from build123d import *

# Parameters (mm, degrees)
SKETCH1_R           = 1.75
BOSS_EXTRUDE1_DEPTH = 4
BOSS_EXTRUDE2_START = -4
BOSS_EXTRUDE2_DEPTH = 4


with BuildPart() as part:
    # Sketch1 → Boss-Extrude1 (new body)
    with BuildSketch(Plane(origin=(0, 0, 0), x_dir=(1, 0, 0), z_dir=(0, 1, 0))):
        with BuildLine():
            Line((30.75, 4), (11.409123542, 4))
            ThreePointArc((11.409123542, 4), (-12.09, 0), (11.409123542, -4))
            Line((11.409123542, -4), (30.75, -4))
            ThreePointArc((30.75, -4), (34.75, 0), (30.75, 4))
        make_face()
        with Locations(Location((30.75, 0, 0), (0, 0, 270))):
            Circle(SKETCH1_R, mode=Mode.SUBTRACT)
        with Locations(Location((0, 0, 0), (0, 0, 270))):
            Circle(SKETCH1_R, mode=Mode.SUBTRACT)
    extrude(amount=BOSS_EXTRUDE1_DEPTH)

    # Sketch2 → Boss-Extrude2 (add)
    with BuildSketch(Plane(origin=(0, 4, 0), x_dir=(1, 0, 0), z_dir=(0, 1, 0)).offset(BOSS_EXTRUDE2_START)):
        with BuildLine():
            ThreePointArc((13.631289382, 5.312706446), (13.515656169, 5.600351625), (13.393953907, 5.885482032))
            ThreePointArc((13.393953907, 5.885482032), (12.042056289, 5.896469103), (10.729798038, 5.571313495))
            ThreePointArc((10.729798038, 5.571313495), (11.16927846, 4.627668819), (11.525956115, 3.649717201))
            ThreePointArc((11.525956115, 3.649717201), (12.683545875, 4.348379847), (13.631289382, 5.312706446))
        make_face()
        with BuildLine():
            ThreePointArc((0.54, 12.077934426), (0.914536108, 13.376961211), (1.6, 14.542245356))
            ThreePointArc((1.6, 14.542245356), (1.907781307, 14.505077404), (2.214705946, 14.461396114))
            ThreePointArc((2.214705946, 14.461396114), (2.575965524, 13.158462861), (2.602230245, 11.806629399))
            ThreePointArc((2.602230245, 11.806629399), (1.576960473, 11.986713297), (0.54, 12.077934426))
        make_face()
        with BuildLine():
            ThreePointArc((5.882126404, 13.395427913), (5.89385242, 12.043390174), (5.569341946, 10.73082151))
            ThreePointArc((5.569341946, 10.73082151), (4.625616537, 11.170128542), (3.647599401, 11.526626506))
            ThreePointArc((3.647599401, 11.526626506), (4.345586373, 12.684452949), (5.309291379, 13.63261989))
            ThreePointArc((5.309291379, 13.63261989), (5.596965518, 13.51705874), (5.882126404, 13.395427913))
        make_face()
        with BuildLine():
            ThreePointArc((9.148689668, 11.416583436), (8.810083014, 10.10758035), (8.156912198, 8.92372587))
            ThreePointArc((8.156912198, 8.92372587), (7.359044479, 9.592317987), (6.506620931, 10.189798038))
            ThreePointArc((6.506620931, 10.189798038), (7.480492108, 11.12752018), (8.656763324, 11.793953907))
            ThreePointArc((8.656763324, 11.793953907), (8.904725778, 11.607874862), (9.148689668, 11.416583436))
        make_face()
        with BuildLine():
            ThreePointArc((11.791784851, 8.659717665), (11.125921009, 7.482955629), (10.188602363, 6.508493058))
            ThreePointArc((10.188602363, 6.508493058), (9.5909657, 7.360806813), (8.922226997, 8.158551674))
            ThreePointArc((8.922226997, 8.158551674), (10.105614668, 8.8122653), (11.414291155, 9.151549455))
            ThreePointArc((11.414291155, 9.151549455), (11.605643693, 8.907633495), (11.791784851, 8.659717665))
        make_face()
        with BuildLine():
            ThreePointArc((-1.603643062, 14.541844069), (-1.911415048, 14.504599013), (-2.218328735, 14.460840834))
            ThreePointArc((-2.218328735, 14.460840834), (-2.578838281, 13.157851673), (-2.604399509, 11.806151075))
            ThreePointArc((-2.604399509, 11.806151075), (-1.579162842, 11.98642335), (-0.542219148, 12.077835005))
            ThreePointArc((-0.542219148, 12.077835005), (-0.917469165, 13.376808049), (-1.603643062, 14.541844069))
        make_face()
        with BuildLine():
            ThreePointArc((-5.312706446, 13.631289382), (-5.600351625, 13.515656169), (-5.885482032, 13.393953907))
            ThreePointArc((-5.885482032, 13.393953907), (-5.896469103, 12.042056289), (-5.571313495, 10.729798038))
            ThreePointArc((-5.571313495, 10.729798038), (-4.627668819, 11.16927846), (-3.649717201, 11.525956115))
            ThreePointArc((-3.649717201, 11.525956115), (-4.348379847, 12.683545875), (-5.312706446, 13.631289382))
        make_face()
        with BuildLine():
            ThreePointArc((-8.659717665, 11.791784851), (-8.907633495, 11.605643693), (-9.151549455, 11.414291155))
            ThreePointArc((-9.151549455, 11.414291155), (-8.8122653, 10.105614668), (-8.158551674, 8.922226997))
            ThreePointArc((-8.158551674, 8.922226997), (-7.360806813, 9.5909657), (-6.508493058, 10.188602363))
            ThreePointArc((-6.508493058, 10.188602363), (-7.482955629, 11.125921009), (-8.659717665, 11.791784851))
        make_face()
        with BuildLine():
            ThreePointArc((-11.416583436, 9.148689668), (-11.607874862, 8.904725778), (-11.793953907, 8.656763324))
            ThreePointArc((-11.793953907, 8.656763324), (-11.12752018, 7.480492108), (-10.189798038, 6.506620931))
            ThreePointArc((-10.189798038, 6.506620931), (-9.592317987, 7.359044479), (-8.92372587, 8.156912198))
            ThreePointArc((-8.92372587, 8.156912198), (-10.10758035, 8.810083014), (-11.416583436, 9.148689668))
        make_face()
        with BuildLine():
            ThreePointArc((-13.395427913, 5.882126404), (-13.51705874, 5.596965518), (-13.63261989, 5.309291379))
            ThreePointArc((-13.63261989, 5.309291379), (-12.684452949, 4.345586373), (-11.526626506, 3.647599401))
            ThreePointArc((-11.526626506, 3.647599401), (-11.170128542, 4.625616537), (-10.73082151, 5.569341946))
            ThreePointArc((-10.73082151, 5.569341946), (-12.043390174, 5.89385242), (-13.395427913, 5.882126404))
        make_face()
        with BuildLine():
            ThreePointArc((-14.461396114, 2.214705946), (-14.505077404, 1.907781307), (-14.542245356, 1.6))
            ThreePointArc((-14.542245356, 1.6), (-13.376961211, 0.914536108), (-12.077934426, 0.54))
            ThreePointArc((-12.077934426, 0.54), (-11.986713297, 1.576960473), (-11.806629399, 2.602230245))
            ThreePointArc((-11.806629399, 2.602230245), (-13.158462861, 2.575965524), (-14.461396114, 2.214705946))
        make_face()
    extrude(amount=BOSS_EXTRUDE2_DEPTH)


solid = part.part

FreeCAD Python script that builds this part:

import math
import FreeCAD as App
import Part
import Sketcher
Q = App.Units.Quantity

doc = App.newDocument("Part")
body = doc.addObject("PartDesign::Body", "Body")

# Sketch on XZ plane
sketch1 = body.newObject("Sketcher::SketchObject", "Sketch")
sketch1.AttachmentSupport = (doc.getObject("XZ_Plane"), [""])
sketch1.MapMode = "FlatFace"
sketch1.addGeometry([
    Part.LineSegment(App.Vector(30.75, -4, 0), App.Vector(11.409124, -4, 0)),  # 0
    Part.ArcOfCircle(Part.Circle(App.Vector(0, 0, 0), App.Vector(0, 0, 1), 12.09), math.radians(19.320493), math.radians(340.679507)),  # 1
    Part.LineSegment(App.Vector(11.409124, 4, 0), App.Vector(30.75, 4, 0)),  # 2
    Part.ArcOfCircle(Part.Circle(App.Vector(30.75, 0, 0), App.Vector(0, 0, 1), 4), math.radians(-90), math.radians(90)),  # 3
    Part.Circle(App.Vector(0, 0, 0), App.Vector(0, 0, 1), 1.75),  # 4
    Part.Circle(App.Vector(30.75, 0, 0), App.Vector(0, 0, 1), 1.75),  # 5
], False)
sketch1.addConstraint([
    Sketcher.Constraint("Coincident", 0, 2, 1, 2),
    Sketcher.Constraint("Coincident", 1, 1, 2, 1),
    Sketcher.Constraint("Tangent", 2, 2, 3, 2),
    Sketcher.Constraint("Tangent", 3, 1, 0, 1),
    Sketcher.Constraint("Horizontal", 0),
    Sketcher.Constraint("Horizontal", 2),
    Sketcher.Constraint("Coincident", 1, 3, -1, 1),
    Sketcher.Constraint("Coincident", 4, 3, -1, 1),
    Sketcher.Constraint("Coincident", 5, 3, 3, 3),
    Sketcher.Constraint("Equal", 4, 5),
    Sketcher.Constraint("PointOnObject", 3, 3, -1),
    Sketcher.Constraint("Radius", 3, Q("4 mm")),
    Sketcher.Constraint("Diameter", 4, Q("3.5 mm")),
    Sketcher.Constraint("Radius", 1, Q("12.09 mm")),
    Sketcher.Constraint("DistanceX", -1, 1, 3, 3, Q("30.75 mm")),
])
pad1 = body.newObject("PartDesign::Pad", "Pad")
pad1.Profile = sketch1
pad1.Length = 4
pad1.Reversed = True

# Sketch on XZ plane
sketch2 = body.newObject("Sketcher::SketchObject", "Sketch001")
sketch2.AttachmentSupport = (doc.getObject("XZ_Plane"), [""])
sketch2.MapMode = "FlatFace"
sketch2.addGeometry([
    Part.ArcOfCircle(Part.Circle(App.Vector(0, 0, 0), App.Vector(0, 0, 1), 14.63), math.radians(-23.721327), math.radians(-21.293026)),  # 0
    Part.ArcOfCircle(Part.Circle(App.Vector(12.674465, -0.533629, 0), App.Vector(0, 0, 1), 5.4), math.radians(-111.107783), math.radians(-82.343218)),  # 1
    Part.ArcOfCircle(Part.Circle(App.Vector(0, 0, 0), App.Vector(0, 0, 1), 12.09), math.radians(-27.440032), math.radians(-17.570496)),  # 2
    Part.ArcOfCircle(Part.Circle(App.Vector(9.336371, -8.585881, 0), App.Vector(0, 0, 1), 5.4), math.radians(37.311171), math.radians(66.078866)),  # 3
    Part.ArcOfCircle(Part.Circle(App.Vector(5.875097, -11.243223, 0), App.Vector(0, 0, 1), 5.4), math.radians(-171.107783), math.radians(-142.343218)),  # 4
    Part.ArcOfCircle(Part.Circle(App.Vector(0, 0, 0), App.Vector(0, 0, 1), 12.09), math.radians(-87.440032), math.radians(-77.570496)),  # 5
    Part.ArcOfCircle(Part.Circle(App.Vector(-2.767406, -12.378475, 0), App.Vector(0, 0, 1), 5.4), math.radians(-22.688829), math.radians(6.078866)),  # 6
    Part.ArcOfCircle(Part.Circle(App.Vector(0, -0.000003, 0), App.Vector(0, 0, 1), 14.629997), math.radians(-83.721328), math.radians(-81.293026)),  # 7
    Part.ArcOfCircle(Part.Circle(App.Vector(0.530676, -12.672946, 0), App.Vector(0, 0, 1), 5.4), math.radians(-7.688829), math.radians(21.078866)),  # 8
    Part.ArcOfCircle(Part.Circle(App.Vector(-0.000001, 0.000003, 0), App.Vector(0, 0, 1), 14.630003), math.radians(-68.721327), math.radians(-66.293027)),  # 9
    Part.ArcOfCircle(Part.Circle(App.Vector(8.584868, -9.339533, 0), App.Vector(0, 0, 1), 5.4), math.radians(-156.107783), math.radians(-127.343218)),  # 10
    Part.ArcOfCircle(Part.Circle(App.Vector(0, 0, 0), App.Vector(0, 0, 1), 12.09), math.radians(-72.440032), math.radians(-62.570496)),  # 11
    Part.ArcOfCircle(Part.Circle(App.Vector(3.792594, -12.103777, 0), App.Vector(0, 0, 1), 5.4), math.radians(7.311171), math.radians(36.078866)),  # 12
    Part.ArcOfCircle(Part.Circle(App.Vector(-0.000001, 0.000001, 0), App.Vector(0, 0, 1), 14.630001), math.radians(-53.721327), math.radians(-51.293026)),  # 13
    Part.ArcOfCircle(Part.Circle(App.Vector(10.709595, -6.799368, 0), App.Vector(0, 0, 1), 5.4), math.radians(-141.107783), math.radians(-112.343218)),  # 14
    Part.ArcOfCircle(Part.Circle(App.Vector(0, 0, 0), App.Vector(0, 0, 1), 12.09), math.radians(-57.440032), math.radians(-47.570496)),  # 15
    Part.ArcOfCircle(Part.Circle(App.Vector(6.796052, -10.709755, 0), App.Vector(0, 0, 1), 5.4), math.radians(22.311171), math.radians(51.078866)),  # 16
    Part.ArcOfCircle(Part.Circle(App.Vector(0.000001, -0.000001, 0), App.Vector(0, 0, 1), 14.629999), math.radians(-38.721327), math.radians(-36.293026)),  # 17
    Part.ArcOfCircle(Part.Circle(App.Vector(12.10448, -3.795839, 0), App.Vector(0, 0, 1), 5.4), math.radians(-126.107783), math.radians(-97.343218)),  # 18
    Part.ArcOfCircle(Part.Circle(App.Vector(0, 0, 0), App.Vector(0, 0, 1), 12.09), math.radians(-42.440032), math.radians(-32.570496)),  # 19
    Part.ArcOfCircle(Part.Circle(App.Vector(0, -0.000002, 0), App.Vector(0, 0, 1), 14.629998), math.radians(-98.721327), math.radians(-96.293026)),  # 20
    Part.ArcOfCircle(Part.Circle(App.Vector(2.764947, -12.380706, 0), App.Vector(0, 0, 1), 5.4), math.radians(173.892217), math.radians(202.656782)),  # 21
    Part.ArcOfCircle(Part.Circle(App.Vector(0, 0, 0), App.Vector(0, 0, 1), 12.09), math.radians(-102.440032), math.radians(-92.570496)),  # 22
    Part.ArcOfCircle(Part.Circle(App.Vector(-5.876894, -11.240431, 0), App.Vector(0, 0, 1), 5.4), math.radians(-37.688829), math.radians(-8.921134)),  # 23
    Part.ArcOfCircle(Part.Circle(App.Vector(0, 0, 0), App.Vector(0, 0, 1), 14.63), math.radians(-113.721327), math.radians(-111.293026)),  # 24
    Part.ArcOfCircle(Part.Circle(App.Vector(-0.533629, -12.674465, 0), App.Vector(0, 0, 1), 5.4), math.radians(158.892217), math.radians(187.656782)),  # 25
    Part.ArcOfCircle(Part.Circle(App.Vector(0, 0, 0), App.Vector(0, 0, 1), 12.09), math.radians(-117.440032), math.radians(-107.570496)),  # 26
    Part.ArcOfCircle(Part.Circle(App.Vector(-8.585881, -9.336371, 0), App.Vector(0, 0, 1), 5.4), math.radians(-52.688829), math.radians(-23.921134)),  # 27
    Part.ArcOfCircle(Part.Circle(App.Vector(-0.000001, -0.000001, 0), App.Vector(0, 0, 1), 14.629999), math.radians(-128.721327), math.radians(-126.293026)),  # 28
    Part.ArcOfCircle(Part.Circle(App.Vector(-3.795839, -12.10448, 0), App.Vector(0, 0, 1), 5.4), math.radians(143.892217), math.radians(172.656782)),  # 29
    Part.ArcOfCircle(Part.Circle(App.Vector(0, 0, 0), App.Vector(0, 0, 1), 12.09), math.radians(-132.440032), math.radians(-122.570496)),  # 30
    Part.ArcOfCircle(Part.Circle(App.Vector(-10.709755, -6.796052, 0), App.Vector(0, 0, 1), 5.4), math.radians(-67.688829), math.radians(-38.921134)),  # 31
    Part.ArcOfCircle(Part.Circle(App.Vector(0.000001, 0.000001, 0), App.Vector(0, 0, 1), 14.630001), math.radians(-143.721327), math.radians(-141.293026)),  # 32
    Part.ArcOfCircle(Part.Circle(App.Vector(-6.799368, -10.709595, 0), App.Vector(0, 0, 1), 5.4), math.radians(128.892217), math.radians(157.656782)),  # 33
    Part.ArcOfCircle(Part.Circle(App.Vector(0, 0, 0), App.Vector(0, 0, 1), 12.09), math.radians(-147.440032), math.radians(-137.570496)),  # 34
    Part.ArcOfCircle(Part.Circle(App.Vector(-12.103777, -3.792594, 0), App.Vector(0, 0, 1), 5.4), math.radians(-82.688829), math.radians(-53.921134)),  # 35
    Part.ArcOfCircle(Part.Circle(App.Vector(0.000003, 0.000001, 0), App.Vector(0, 0, 1), 14.630003), math.radians(-158.721327), math.radians(-156.293027)),  # 36
    Part.ArcOfCircle(Part.Circle(App.Vector(-9.339533, -8.584868, 0), App.Vector(0, 0, 1), 5.4), math.radians(113.892217), math.radians(142.656782)),  # 37
    Part.ArcOfCircle(Part.Circle(App.Vector(0, 0, 0), App.Vector(0, 0, 1), 12.09), math.radians(-162.440032), math.radians(-152.570496)),  # 38
    Part.ArcOfCircle(Part.Circle(App.Vector(-12.672946, -0.530676, 0), App.Vector(0, 0, 1), 5.4), math.radians(-97.688829), math.radians(-68.921134)),  # 39
    Part.ArcOfCircle(Part.Circle(App.Vector(-0.000003, 0, 0), App.Vector(0, 0, 1), 14.629997), math.radians(-173.721328), math.radians(-171.293026)),  # 40
    Part.ArcOfCircle(Part.Circle(App.Vector(-11.243223, -5.875097, 0), App.Vector(0, 0, 1), 5.4), math.radians(98.892217), math.radians(127.656782)),  # 41
    Part.ArcOfCircle(Part.Circle(App.Vector(0, 0, 0), App.Vector(0, 0, 1), 12.09), math.radians(-177.440032), math.radians(-167.570496)),  # 42
    Part.ArcOfCircle(Part.Circle(App.Vector(-12.378475, 2.767406, 0), App.Vector(0, 0, 1), 5.4), math.radians(-112.688829), math.radians(-83.921134)),  # 43
], False)
sketch2.addConstraint([
    Sketcher.Constraint("Coincident", 0, 1, 1, 2),
    Sketcher.Constraint("Coincident", 1, 1, 2, 1),
    Sketcher.Constraint("Coincident", 2, 2, 3, 2),
    Sketcher.Constraint("Coincident", 3, 1, 0, 2),
    Sketcher.Constraint("Coincident", 4, 1, 5, 1),
    Sketcher.Constraint("Coincident", 5, 2, 6, 2),
    Sketcher.Constraint("Coincident", 6, 1, 7, 2),
    Sketcher.Constraint("Coincident", 7, 1, 4, 2),
    Sketcher.Constraint("Coincident", 8, 1, 9, 2),
    Sketcher.Constraint("Coincident", 9, 1, 10, 2),
    Sketcher.Constraint("Coincident", 10, 1, 11, 1),
    Sketcher.Constraint("Coincident", 11, 2, 8, 2),
    Sketcher.Constraint("Coincident", 12, 1, 13, 2),
    Sketcher.Constraint("Coincident", 13, 1, 14, 2),
    Sketcher.Constraint("Coincident", 14, 1, 15, 1),
    Sketcher.Constraint("Coincident", 15, 2, 12, 2),
    Sketcher.Constraint("Coincident", 16, 1, 17, 2),
    Sketcher.Constraint("Coincident", 17, 1, 18, 2),
    Sketcher.Constraint("Coincident", 18, 1, 19, 1),
    Sketcher.Constraint("Coincident", 19, 2, 16, 2),
    Sketcher.Constraint("Coincident", 20, 1, 21, 2),
    Sketcher.Constraint("Coincident", 21, 1, 22, 1),
    Sketcher.Constraint("Coincident", 22, 2, 23, 2),
    Sketcher.Constraint("Coincident", 23, 1, 20, 2),
    Sketcher.Constraint("Coincident", 24, 1, 25, 2),
    Sketcher.Constraint("Coincident", 25, 1, 26, 1),
    Sketcher.Constraint("Coincident", 26, 2, 27, 2),
    Sketcher.Constraint("Coincident", 27, 1, 24, 2),
    Sketcher.Constraint("Coincident", 28, 1, 29, 2),
    Sketcher.Constraint("Coincident", 29, 1, 30, 1),
    Sketcher.Constraint("Coincident", 30, 2, 31, 2),
    Sketcher.Constraint("Coincident", 31, 1, 28, 2),
    Sketcher.Constraint("Coincident", 32, 1, 33, 2),
    Sketcher.Constraint("Coincident", 33, 1, 34, 1),
    Sketcher.Constraint("Coincident", 34, 2, 35, 2),
    Sketcher.Constraint("Coincident", 35, 1, 32, 2),
    Sketcher.Constraint("Coincident", 36, 1, 37, 2),
    Sketcher.Constraint("Coincident", 37, 1, 38, 1),
    Sketcher.Constraint("Coincident", 38, 2, 39, 2),
    Sketcher.Constraint("Coincident", 39, 1, 36, 2),
    Sketcher.Constraint("Coincident", 40, 1, 41, 2),
    Sketcher.Constraint("Coincident", 41, 1, 42, 1),
    Sketcher.Constraint("Coincident", 42, 2, 43, 2),
    Sketcher.Constraint("Coincident", 43, 1, 40, 2),
    Sketcher.Constraint("Coincident", 0, 3, -1, 1),
    Sketcher.Constraint("Coincident", 2, 3, -1, 1),
    Sketcher.Constraint("Coincident", 5, 3, -1, 1),
    Sketcher.Constraint("Coincident", 7, 3, -1, 1),
    Sketcher.Constraint("Coincident", 9, 3, -1, 1),
    Sketcher.Constraint("Coincident", 11, 3, -1, 1),
    Sketcher.Constraint("Coincident", 13, 3, -1, 1),
    Sketcher.Constraint("Coincident", 15, 3, -1, 1),
    Sketcher.Constraint("Coincident", 17, 3, -1, 1),
    Sketcher.Constraint("Coincident", 19, 3, -1, 1),
    Sketcher.Constraint("Coincident", 20, 3, -1, 1),
    Sketcher.Constraint("Coincident", 22, 3, -1, 1),
    Sketcher.Constraint("Coincident", 24, 3, -1, 1),
    Sketcher.Constraint("Coincident", 26, 3, -1, 1),
    Sketcher.Constraint("Coincident", 28, 3, -1, 1),
    Sketcher.Constraint("Coincident", 30, 3, -1, 1),
    Sketcher.Constraint("Coincident", 32, 3, -1, 1),
    Sketcher.Constraint("Coincident", 34, 3, -1, 1),
    Sketcher.Constraint("Coincident", 36, 3, -1, 1),
    Sketcher.Constraint("Coincident", 38, 3, -1, 1),
    Sketcher.Constraint("Coincident", 40, 3, -1, 1),
    Sketcher.Constraint("Coincident", 42, 3, -1, 1),
    Sketcher.Constraint("Equal", 1, 3),
    Sketcher.Constraint("Equal", 3, 4),
    Sketcher.Constraint("Equal", 2, 5),
    Sketcher.Constraint("Equal", 4, 6),
    Sketcher.Constraint("Equal", 6, 8),
    Sketcher.Constraint("Equal", 8, 10),
    Sketcher.Constraint("Equal", 5, 11),
    Sketcher.Constraint("Equal", 10, 12),
    Sketcher.Constraint("Equal", 9, 13),
    Sketcher.Constraint("Equal", 12, 14),
    Sketcher.Constraint("Equal", 11, 15),
    Sketcher.Constraint("Equal", 14, 16),
    Sketcher.Constraint("Equal", 7, 17),
    Sketcher.Constraint("Equal", 16, 18),
    Sketcher.Constraint("Equal", 15, 19),
    Sketcher.Constraint("Equal", 17, 20),
    Sketcher.Constraint("Equal", 18, 21),
    Sketcher.Constraint("Equal", 19, 22),
    Sketcher.Constraint("Equal", 21, 23),
    Sketcher.Constraint("Equal", 17, 24),
    Sketcher.Constraint("Equal", 23, 25),
    Sketcher.Constraint("Equal", 22, 26),
    Sketcher.Constraint("Equal", 25, 27),
    Sketcher.Constraint("Equal", 24, 28),
    Sketcher.Constraint("Equal", 27, 29),
    Sketcher.Constraint("Equal", 26, 30),
    Sketcher.Constraint("Equal", 29, 31),
    Sketcher.Constraint("Equal", 24, 32),
    Sketcher.Constraint("Equal", 31, 33),
    Sketcher.Constraint("Equal", 30, 34),
    Sketcher.Constraint("Equal", 33, 35),
    Sketcher.Constraint("Equal", 32, 36),
    Sketcher.Constraint("Equal", 35, 37),
    Sketcher.Constraint("Equal", 34, 38),
    Sketcher.Constraint("Equal", 37, 39),
    Sketcher.Constraint("Equal", 28, 40),
    Sketcher.Constraint("Equal", 39, 41),
    Sketcher.Constraint("Equal", 38, 42),
    Sketcher.Constraint("Equal", 41, 43),
    Sketcher.Constraint("Radius", 1, Q("5.4 mm")),
    Sketcher.Constraint("Radius", 0, Q("14.63 mm")),
    Sketcher.Constraint("Radius", 2, Q("12.09 mm")),
    Sketcher.Constraint("Radius", 13, Q("14.630001 mm")),
    Sketcher.Constraint("Radius", 17, Q("14.629999 mm")),
    Sketcher.Constraint("DistanceX", -1, 1, 7, 1, Q("1.6 mm")),
    Sketcher.Constraint("DistanceY", 40, 1, -1, 1, Q("1.6 mm")),
    Sketcher.Constraint("DistanceX", -1, 1, 4, 1, Q("0.54 mm")),
    Sketcher.Constraint("DistanceY", 41, 1, -1, 1, Q("0.54 mm")),
    Sketcher.Constraint("DistanceX", -1, 1, 1, 1, Q("10.729798 mm")),
    Sketcher.Constraint("DistanceX", -1, 1, 10, 1, Q("3.647599 mm")),
    Sketcher.Constraint("DistanceY", 14, 1, -1, 1, Q("10.189798 mm")),
    Sketcher.Constraint("DistanceX", 21, 1, -1, 1, Q("2.6044 mm")),
    Sketcher.Constraint("DistanceY", 25, 1, -1, 1, Q("10.729798 mm")),
    Sketcher.Constraint("DistanceX", 33, 1, -1, 1, Q("10.189798 mm")),
    Sketcher.Constraint("DistanceY", 37, 1, -1, 1, Q("3.647599 mm")),
    Sketcher.Constraint("DistanceY", 1, 3, -1, 1, Q("0.533629 mm")),
    Sketcher.Constraint("DistanceX", -1, 1, 3, 3, Q("9.336371 mm")),
    Sketcher.Constraint("DistanceY", 3, 3, -1, 1, Q("8.585881 mm")),
    Sketcher.Constraint("DistanceY", 14, 3, -1, 1, Q("6.799368 mm")),
    Sketcher.Constraint("DistanceX", -1, 1, 16, 3, Q("6.796052 mm")),
    Sketcher.Constraint("DistanceX", -1, 1, 18, 3, Q("12.10448 mm")),
    Sketcher.Constraint("DistanceY", 18, 3, -1, 1, Q("3.795839 mm")),
    Sketcher.Constraint("DistanceY", 23, 3, -1, 1, Q("11.240431 mm")),
    Sketcher.Constraint("DistanceX", 25, 3, -1, 1, Q("0.533629 mm")),
    Sketcher.Constraint("DistanceX", 27, 3, -1, 1, Q("8.585881 mm")),
    Sketcher.Constraint("DistanceY", 27, 3, -1, 1, Q("9.336371 mm")),
    Sketcher.Constraint("DistanceX", 29, 3, -1, 1, Q("3.795839 mm")),
    Sketcher.Constraint("DistanceY", 29, 3, -1, 1, Q("12.10448 mm")),
    Sketcher.Constraint("DistanceY", 31, 3, -1, 1, Q("6.796052 mm")),
    Sketcher.Constraint("DistanceX", 33, 3, -1, 1, Q("6.799368 mm")),
    Sketcher.Constraint("DistanceX", -1, 1, 5, 2, Q("2.60223 mm")),
    Sketcher.Constraint("DistanceX", -1, 1, 9, 1, Q("5.309291 mm")),
    Sketcher.Constraint("DistanceX", -1, 1, 11, 2, Q("5.569342 mm")),
    Sketcher.Constraint("DistanceX", -1, 1, 12, 1, Q("9.14869 mm")),
    Sketcher.Constraint("DistanceX", 20, 1, -1, 1, Q("2.218329 mm")),
    Sketcher.Constraint("DistanceX", 22, 2, -1, 1, Q("0.542219 mm")),
    Sketcher.Constraint("DistanceY", 35, 1, -1, 1, Q("9.14869 mm")),
    Sketcher.Constraint("DistanceX", 36, 1, -1, 1, Q("13.63262 mm")),
    Sketcher.Constraint("DistanceX", 38, 2, -1, 1, Q("10.730822 mm")),
    Sketcher.Constraint("DistanceX", 42, 2, -1, 1, Q("11.806629 mm")),
    Sketcher.Constraint("DistanceX", 6, 3, -1, 1, Q("2.767406 mm")),
    Sketcher.Constraint("DistanceX", -1, 1, 8, 3, Q("0.530676 mm")),
    Sketcher.Constraint("DistanceX", -1, 1, 12, 3, Q("3.792594 mm")),
    Sketcher.Constraint("DistanceY", 16, 3, -1, 1, Q("10.709755 mm")),
    Sketcher.Constraint("DistanceX", 31, 3, -1, 1, Q("10.709755 mm")),
    Sketcher.Constraint("DistanceX", 35, 3, -1, 1, Q("12.103777 mm")),
    Sketcher.Constraint("DistanceX", 39, 3, -1, 1, Q("12.672946 mm")),
    Sketcher.Constraint("DistanceX", 43, 3, -1, 1, Q("12.378475 mm")),
])
pad2 = body.newObject("PartDesign::Pad", "Pad001")
pad2.Profile = sketch2
pad2.Length = 4
pad2.Reversed = True

doc.recompute()
